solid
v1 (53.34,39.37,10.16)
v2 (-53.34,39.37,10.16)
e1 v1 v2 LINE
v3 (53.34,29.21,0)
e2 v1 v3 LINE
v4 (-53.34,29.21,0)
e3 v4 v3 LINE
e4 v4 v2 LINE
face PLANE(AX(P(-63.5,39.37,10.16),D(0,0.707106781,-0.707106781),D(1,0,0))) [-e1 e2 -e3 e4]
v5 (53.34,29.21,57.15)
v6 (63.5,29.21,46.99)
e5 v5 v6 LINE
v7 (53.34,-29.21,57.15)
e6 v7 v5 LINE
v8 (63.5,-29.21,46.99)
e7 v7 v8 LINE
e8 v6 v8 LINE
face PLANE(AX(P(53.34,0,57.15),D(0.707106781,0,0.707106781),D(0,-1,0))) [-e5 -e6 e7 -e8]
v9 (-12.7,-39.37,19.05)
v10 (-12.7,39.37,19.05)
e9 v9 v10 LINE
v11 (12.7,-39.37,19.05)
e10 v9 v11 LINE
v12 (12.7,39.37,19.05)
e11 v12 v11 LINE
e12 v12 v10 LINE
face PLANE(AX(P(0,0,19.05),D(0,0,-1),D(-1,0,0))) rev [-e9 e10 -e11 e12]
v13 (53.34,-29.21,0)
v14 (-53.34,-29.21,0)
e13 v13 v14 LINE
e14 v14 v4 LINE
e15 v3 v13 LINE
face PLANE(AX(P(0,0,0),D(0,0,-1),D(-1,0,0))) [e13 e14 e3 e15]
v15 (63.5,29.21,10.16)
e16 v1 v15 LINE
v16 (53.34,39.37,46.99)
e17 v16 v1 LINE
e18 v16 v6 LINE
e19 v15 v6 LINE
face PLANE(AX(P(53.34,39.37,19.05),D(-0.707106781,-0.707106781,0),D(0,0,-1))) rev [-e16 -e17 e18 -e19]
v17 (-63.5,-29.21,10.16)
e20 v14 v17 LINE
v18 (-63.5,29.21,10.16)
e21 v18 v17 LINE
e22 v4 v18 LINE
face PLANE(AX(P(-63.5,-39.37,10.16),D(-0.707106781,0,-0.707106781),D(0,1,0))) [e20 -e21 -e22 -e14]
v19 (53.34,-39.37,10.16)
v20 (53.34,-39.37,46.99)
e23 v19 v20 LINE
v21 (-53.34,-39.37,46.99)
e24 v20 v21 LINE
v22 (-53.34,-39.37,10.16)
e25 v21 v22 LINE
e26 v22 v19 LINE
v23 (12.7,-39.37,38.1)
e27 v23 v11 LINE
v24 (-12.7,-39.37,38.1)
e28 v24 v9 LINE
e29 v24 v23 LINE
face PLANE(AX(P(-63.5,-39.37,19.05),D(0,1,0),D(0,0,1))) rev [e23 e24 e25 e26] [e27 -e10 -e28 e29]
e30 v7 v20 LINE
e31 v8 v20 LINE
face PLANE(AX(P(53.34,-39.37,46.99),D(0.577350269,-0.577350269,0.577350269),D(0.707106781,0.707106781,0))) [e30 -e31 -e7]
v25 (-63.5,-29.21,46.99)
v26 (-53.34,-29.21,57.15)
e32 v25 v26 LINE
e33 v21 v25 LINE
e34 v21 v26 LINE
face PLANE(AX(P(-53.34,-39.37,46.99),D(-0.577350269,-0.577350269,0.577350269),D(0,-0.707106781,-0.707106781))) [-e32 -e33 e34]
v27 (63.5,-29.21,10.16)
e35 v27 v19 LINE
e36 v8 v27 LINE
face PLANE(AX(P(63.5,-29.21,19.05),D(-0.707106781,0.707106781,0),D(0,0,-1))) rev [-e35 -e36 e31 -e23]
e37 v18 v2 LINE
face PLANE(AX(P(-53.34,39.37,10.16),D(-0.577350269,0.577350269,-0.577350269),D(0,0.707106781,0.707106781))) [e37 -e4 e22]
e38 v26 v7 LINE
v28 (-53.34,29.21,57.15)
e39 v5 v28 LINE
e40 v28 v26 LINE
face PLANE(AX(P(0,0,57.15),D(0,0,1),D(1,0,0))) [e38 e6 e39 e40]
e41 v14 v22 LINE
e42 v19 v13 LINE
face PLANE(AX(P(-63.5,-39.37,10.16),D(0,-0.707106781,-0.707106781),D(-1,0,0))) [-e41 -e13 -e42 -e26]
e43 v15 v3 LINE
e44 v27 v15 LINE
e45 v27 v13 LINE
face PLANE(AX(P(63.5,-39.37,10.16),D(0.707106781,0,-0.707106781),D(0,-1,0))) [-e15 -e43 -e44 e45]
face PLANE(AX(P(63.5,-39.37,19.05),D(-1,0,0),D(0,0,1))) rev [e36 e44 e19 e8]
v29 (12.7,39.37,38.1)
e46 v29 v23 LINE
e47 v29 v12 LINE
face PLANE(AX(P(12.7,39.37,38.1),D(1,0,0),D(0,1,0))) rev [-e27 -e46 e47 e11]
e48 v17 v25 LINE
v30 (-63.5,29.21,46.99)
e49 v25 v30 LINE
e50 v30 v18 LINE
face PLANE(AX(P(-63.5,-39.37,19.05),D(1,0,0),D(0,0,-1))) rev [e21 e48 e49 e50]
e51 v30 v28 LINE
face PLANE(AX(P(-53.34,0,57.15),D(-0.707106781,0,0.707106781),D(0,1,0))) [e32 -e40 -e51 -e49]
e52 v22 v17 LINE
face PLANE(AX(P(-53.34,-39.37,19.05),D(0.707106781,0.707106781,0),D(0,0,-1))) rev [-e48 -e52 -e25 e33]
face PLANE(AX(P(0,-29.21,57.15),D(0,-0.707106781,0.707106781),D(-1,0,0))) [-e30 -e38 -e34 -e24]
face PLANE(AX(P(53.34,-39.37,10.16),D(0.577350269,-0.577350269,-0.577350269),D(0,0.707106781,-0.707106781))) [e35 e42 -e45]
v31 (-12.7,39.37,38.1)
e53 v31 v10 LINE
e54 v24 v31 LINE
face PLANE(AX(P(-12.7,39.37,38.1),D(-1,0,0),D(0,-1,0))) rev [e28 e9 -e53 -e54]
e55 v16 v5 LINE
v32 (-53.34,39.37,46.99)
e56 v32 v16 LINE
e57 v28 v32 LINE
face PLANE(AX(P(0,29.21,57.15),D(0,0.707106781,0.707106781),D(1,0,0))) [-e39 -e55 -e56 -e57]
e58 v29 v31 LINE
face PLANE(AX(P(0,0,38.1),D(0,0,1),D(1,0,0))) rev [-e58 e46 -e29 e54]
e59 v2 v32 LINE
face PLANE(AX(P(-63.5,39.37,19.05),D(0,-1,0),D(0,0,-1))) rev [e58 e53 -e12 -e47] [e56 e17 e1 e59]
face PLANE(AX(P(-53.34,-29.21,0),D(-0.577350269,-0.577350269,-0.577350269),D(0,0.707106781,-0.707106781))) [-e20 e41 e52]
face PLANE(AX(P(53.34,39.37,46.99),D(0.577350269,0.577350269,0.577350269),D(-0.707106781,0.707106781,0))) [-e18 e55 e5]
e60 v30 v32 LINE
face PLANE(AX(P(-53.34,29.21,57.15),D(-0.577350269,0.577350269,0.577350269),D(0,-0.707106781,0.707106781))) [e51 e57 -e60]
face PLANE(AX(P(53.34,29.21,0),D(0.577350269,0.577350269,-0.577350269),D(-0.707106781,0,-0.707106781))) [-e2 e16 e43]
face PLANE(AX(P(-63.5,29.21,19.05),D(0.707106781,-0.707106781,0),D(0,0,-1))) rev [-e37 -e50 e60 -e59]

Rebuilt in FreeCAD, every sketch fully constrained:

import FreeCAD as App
import Part
import Sketcher

V = App.Vector
Q = App.Units.Quantity


def edges_at(feature, points):
    """Names of the edges that pass closest to the given points."""
    edges = feature.Shape.Edges
    near = lambda p: min(range(len(edges)), key=lambda i: edges[i].distToShape(Part.Vertex(*p))[0])
    return sorted({f"Edge{near(p) + 1}" for p in points})

doc = App.newDocument("Part")
body = doc.addObject("PartDesign::Body", "Body")

sketch1 = body.newObject("Sketcher::SketchObject", "Sketch")
sketch1.AttachmentSupport = (doc.getObject("XY_Plane"), [""])
sketch1.MapMode = "FlatFace"
sketch1.addGeometry([
    Part.LineSegment(V(-64, 39, 0), V(-64, -39, 0)),
    Part.LineSegment(V(-64, -39, 0), V(64, -39, 0)),
    Part.LineSegment(V(64, -39, 0), V(64, 39, 0)),
    Part.LineSegment(V(64, 39, 0), V(-64, 39, 0)),
], False)
sketch1.addConstraint([
    Sketcher.Constraint("Coincident", 0, 2, 1, 1),
    Sketcher.Constraint("Coincident", 1, 2, 2, 1),
    Sketcher.Constraint("Coincident", 2, 2, 3, 1),
    Sketcher.Constraint("Coincident", 3, 2, 0, 1),
    Sketcher.Constraint("Vertical", 0),
    Sketcher.Constraint("Horizontal", 1),
    Sketcher.Constraint("Vertical", 2),
    Sketcher.Constraint("Horizontal", 3),
    Sketcher.Constraint("Symmetric", 0, 2, 2, 2, -1, 1),
    Sketcher.Constraint("DistanceX", 1, 1, 1, 2, Q("5 in")),
    Sketcher.Constraint("DistanceY", 0, 2, 0, 1, Q("3.1 in")),
])
pad1 = body.newObject("PartDesign::Pad", "Pad")
pad1.Profile = sketch1
pad1.Length = Q("0.75 in")

sketch2 = body.newObject("Sketcher::SketchObject", "Sketch001")
sketch2.AttachmentSupport = (doc.getObject("XY_Plane"), [""])
sketch2.MapMode = "FlatFace"
sketch2.AttachmentOffset = App.Placement(V(0, 0, 0.75 * 25.4), App.Rotation())
sketch2.addGeometry([
    Part.LineSegment(V(-64, 39, 0), V(-64, -39, 0)),
    Part.LineSegment(V(-64, -39, 0), V(-13, -39, 0)),
    Part.LineSegment(V(-13, -39, 0), V(-13, 39, 0)),
    Part.LineSegment(V(-13, 39, 0), V(-64, 39, 0)),
    Part.LineSegment(V(13, 39, 0), V(13, -39, 0)),
    Part.LineSegment(V(13, -39, 0), V(64, -39, 0)),
    Part.LineSegment(V(64, -39, 0), V(64, 39, 0)),
    Part.LineSegment(V(64, 39, 0), V(13, 39, 0)),
], False)
sketch2.addConstraint([
    Sketcher.Constraint("Coincident", 0, 2, 1, 1),
    Sketcher.Constraint("Coincident", 1, 2, 2, 1),
    Sketcher.Constraint("Coincident", 2, 2, 3, 1),
    Sketcher.Constraint("Coincident", 3, 2, 0, 1),
    Sketcher.Constraint("Coincident", 4, 2, 5, 1),
    Sketcher.Constraint("Coincident", 5, 2, 6, 1),
    Sketcher.Constraint("Coincident", 6, 2, 7, 1),
    Sketcher.Constraint("Coincident", 7, 2, 4, 1),
    Sketcher.Constraint("Vertical", 0),
    Sketcher.Constraint("Horizontal", 1),
    Sketcher.Constraint("Vertical", 2),
    Sketcher.Constraint("Horizontal", 3),
    Sketcher.Constraint("Vertical", 4),
    Sketcher.Constraint("Horizontal", 5),
    Sketcher.Constraint("Vertical", 6),
    Sketcher.Constraint("Horizontal", 7),
    Sketcher.Constraint("Symmetric", 2, 2, 4, 2, -1, 1),
    Sketcher.Constraint("Symmetric", 0, 2, 6, 2, -1, 1),
    Sketcher.Constraint("Horizontal", 1, 2, 4, 2),
    Sketcher.Constraint("DistanceX", 1, 1, 1, 2, Q("2 in")),
    Sketcher.Constraint("DistanceY", 0, 2, 0, 1, Q("3.1 in")),
    Sketcher.Constraint("DistanceX", 1, 2, 4, 2, Q("1 in")),
])
pad2 = body.newObject("PartDesign::Pad", "Pad001")
pad2.Profile = sketch2
pad2.Length = Q("0.75 in")

sketch3 = body.newObject("Sketcher::SketchObject", "Sketch002")
sketch3.AttachmentSupport = (doc.getObject("XY_Plane"), [""])
sketch3.MapMode = "FlatFace"
sketch3.AttachmentOffset = App.Placement(V(0, 0, 1.5 * 25.4), App.Rotation())
sketch3.addGeometry([
    Part.LineSegment(V(-64, 39, 0), V(-64, -39, 0)),
    Part.LineSegment(V(-64, -39, 0), V(64, -39, 0)),
    Part.LineSegment(V(64, -39, 0), V(64, 39, 0)),
    Part.LineSegment(V(64, 39, 0), V(-64, 39, 0)),
], False)
sketch3.addConstraint([
    Sketcher.Constraint("Coincident", 0, 2, 1, 1),
    Sketcher.Constraint("Coincident", 1, 2, 2, 1),
    Sketcher.Constraint("Coincident", 2, 2, 3, 1),
    Sketcher.Constraint("Coincident", 3, 2, 0, 1),
    Sketcher.Constraint("Vertical", 0),
    Sketcher.Constraint("Horizontal", 1),
    Sketcher.Constraint("Vertical", 2),
    Sketcher.Constraint("Horizontal", 3),
    Sketcher.Constraint("Symmetric", 0, 2, 2, 2, -1, 1),
    Sketcher.Constraint("DistanceX", 1, 1, 1, 2, Q("5 in")),
    Sketcher.Constraint("DistanceY", 0, 2, 0, 1, Q("3.1 in")),
])
pad3 = body.newObject("PartDesign::Pad", "Pad002")
pad3.Profile = sketch3
pad3.Length = Q("0.75 in")
doc.recompute()

chamfer = body.newObject("PartDesign::Chamfer", "Chamfer")
chamfer.Base = (pad3, edges_at(pad3, [
    (-63.5, 0, 57.15),
    (0, -39.37, 57.15),
    (63.5, 0, 57.15),
    (0, 39.37, 57.15),
    (0, -39.37, 0),
    (-63.5, 0, 0),
    (0, 39.37, 0),
    (63.5, 0, 0),
    (63.5, -39.37, 28.575),
    (-63.5, -39.37, 28.575),
    (-63.5, 39.37, 28.575),
    (63.5, 39.37, 28.575),
]))
chamfer.Size = Q("0.4 in")

doc.recompute()
